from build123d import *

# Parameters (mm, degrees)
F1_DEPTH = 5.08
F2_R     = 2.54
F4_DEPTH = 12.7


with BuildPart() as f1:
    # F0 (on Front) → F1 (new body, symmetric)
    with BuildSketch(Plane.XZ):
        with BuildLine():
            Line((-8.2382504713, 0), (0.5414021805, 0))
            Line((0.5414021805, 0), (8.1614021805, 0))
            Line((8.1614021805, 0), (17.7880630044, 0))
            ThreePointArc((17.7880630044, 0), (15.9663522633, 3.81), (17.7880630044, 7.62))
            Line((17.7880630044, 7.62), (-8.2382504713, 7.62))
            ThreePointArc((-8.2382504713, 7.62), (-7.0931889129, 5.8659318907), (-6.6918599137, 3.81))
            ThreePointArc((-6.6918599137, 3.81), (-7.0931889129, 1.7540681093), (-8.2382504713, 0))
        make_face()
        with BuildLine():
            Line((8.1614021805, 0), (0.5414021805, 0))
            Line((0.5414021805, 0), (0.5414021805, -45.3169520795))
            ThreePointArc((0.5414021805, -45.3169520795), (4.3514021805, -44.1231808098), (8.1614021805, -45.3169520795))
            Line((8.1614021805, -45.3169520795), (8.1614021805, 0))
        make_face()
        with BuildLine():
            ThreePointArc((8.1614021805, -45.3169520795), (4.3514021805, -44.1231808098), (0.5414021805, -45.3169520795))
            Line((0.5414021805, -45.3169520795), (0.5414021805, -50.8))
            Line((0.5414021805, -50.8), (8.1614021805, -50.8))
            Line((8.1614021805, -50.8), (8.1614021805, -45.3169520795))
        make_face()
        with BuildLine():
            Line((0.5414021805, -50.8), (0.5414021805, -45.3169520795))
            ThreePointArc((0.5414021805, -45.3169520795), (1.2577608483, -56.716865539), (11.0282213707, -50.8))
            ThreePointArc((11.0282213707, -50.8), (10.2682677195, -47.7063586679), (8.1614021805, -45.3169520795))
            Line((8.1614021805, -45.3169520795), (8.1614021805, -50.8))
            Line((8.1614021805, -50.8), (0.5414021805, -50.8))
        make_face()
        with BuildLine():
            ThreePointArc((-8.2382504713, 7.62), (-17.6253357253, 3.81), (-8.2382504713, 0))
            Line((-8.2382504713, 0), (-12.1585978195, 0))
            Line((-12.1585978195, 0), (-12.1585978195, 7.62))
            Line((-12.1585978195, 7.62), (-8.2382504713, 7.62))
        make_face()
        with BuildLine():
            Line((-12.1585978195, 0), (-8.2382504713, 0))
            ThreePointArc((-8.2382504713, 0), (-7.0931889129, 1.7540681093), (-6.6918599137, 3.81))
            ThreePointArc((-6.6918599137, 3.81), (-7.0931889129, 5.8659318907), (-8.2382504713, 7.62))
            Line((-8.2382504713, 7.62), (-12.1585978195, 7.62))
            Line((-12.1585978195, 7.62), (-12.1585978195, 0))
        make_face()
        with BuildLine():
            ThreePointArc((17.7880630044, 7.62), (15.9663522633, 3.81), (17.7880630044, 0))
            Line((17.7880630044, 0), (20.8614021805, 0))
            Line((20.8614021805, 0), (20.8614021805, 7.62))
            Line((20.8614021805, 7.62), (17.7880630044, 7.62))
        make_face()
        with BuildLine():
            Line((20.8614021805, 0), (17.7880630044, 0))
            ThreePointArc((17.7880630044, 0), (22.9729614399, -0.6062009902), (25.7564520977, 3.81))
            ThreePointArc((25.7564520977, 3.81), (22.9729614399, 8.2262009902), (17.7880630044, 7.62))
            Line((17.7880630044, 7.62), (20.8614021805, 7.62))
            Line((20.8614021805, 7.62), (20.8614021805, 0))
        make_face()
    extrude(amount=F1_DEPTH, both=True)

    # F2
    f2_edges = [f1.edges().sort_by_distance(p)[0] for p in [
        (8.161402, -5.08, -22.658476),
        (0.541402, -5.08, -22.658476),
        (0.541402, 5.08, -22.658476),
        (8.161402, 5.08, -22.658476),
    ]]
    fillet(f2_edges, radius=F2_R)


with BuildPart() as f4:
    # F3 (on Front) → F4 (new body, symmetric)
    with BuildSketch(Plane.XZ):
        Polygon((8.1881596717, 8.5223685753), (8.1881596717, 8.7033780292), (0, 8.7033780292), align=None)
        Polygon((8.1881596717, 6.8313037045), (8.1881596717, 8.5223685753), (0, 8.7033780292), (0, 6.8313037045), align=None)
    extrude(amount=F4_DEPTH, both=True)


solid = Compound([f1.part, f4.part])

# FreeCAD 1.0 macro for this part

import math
import FreeCAD as App
import Part
import Sketcher
Q = App.Units.Quantity


def edges_at(feature, points):
    """Names of the edges that pass closest to the given points."""
    edges = feature.Shape.Edges
    near = lambda p: min(range(len(edges)), key=lambda i: edges[i].distToShape(Part.Vertex(*p))[0])
    return sorted({f"Edge{near(p) + 1}" for p in points})


def add_polygon(sketch, points):
    """Adds a closed chain of lines whose ends are joined by coincident constraints."""
    first, n = sketch.GeometryCount, len(points)
    for a, b in zip(points, points[1:] + points[:1]):
        sketch.addGeometry(Part.LineSegment(App.Vector(*a, 0), App.Vector(*b, 0)), False)
    for i in range(n):
        sketch.addConstraint(Sketcher.Constraint("Coincident", first + i, 2, first + (i + 1) % n, 1))

doc = App.newDocument("Part")
body = doc.addObject("PartDesign::Body", "Body")

# Sketch on XZ plane
sketch1 = doc.addObject("Sketcher::SketchObject", "Sketch")
body.addObject(sketch1)
sketch1.AttachmentSupport = (doc.XZ_Plane, [""])
sketch1.MapMode = "FlatFace"
sketch1.addGeometry(Part.LineSegment(App.Vector(-8.2, 0, 0), App.Vector(0.5, 0, 0)), False)
sketch1.addGeometry(Part.LineSegment(App.Vector(0.5, 0, 0), App.Vector(0.5, -45.3, 0)), False)
sketch1.addGeometry(Part.ArcOfCircle(Part.Circle(App.Vector(4.4, -50.8, 0), App.Vector(0, 0, 1), 6.7), math.radians(125), math.radians(360)), False)
sketch1.addGeometry(Part.ArcOfCircle(Part.Circle(App.Vector(4.4, -50.8, 0), App.Vector(0, 0, 1), 6.7), math.radians(0), math.radians(55)), False)
sketch1.addGeometry(Part.LineSegment(App.Vector(8.2, -45.3, 0), App.Vector(8.2, 0, 0)), False)
sketch1.addGeometry(Part.LineSegment(App.Vector(8.2, 0, 0), App.Vector(17.8, 0, 0)), False)
sketch1.addGeometry(Part.ArcOfCircle(Part.Circle(App.Vector(20.9, 3.8, 0), App.Vector(0, 0, 1), 4.9), math.radians(-129), math.radians(0)), False)
sketch1.addGeometry(Part.ArcOfCircle(Part.Circle(App.Vector(20.9, 3.8, 0), App.Vector(0, 0, 1), 4.9), math.radians(0), math.radians(129)), False)
sketch1.addGeometry(Part.LineSegment(App.Vector(17.8, 7.6, 0), App.Vector(-8.2, 7.6, 0)), False)
sketch1.addGeometry(Part.ArcOfCircle(Part.Circle(App.Vector(-12.2, 3.8, 0), App.Vector(0, 0, 1), 5.5), math.radians(44), math.radians(316)), False)
sketch1.addConstraint(Sketcher.Constraint("Coincident", 0, 2, 1, 1))
sketch1.addConstraint(Sketcher.Constraint("Coincident", 1, 2, 2, 1))
sketch1.addConstraint(Sketcher.Constraint("Tangent", 2, 2, 3, 1))
sketch1.addConstraint(Sketcher.Constraint("Coincident", 3, 2, 4, 1))
sketch1.addConstraint(Sketcher.Constraint("Coincident", 4, 2, 5, 1))
sketch1.addConstraint(Sketcher.Constraint("Coincident", 5, 2, 6, 1))
sketch1.addConstraint(Sketcher.Constraint("Tangent", 6, 2, 7, 1))
sketch1.addConstraint(Sketcher.Constraint("Coincident", 7, 2, 8, 1))
sketch1.addConstraint(Sketcher.Constraint("Coincident", 8, 2, 9, 1))
sketch1.addConstraint(Sketcher.Constraint("Coincident", 9, 2, 0, 1))
sketch1.addConstraint(Sketcher.Constraint("Horizontal", 0))
sketch1.addConstraint(Sketcher.Constraint("Vertical", 1))
sketch1.addConstraint(Sketcher.Constraint("Vertical", 4))
sketch1.addConstraint(Sketcher.Constraint("Horizontal", 5))
sketch1.addConstraint(Sketcher.Constraint("Horizontal", 8))
sketch1.addConstraint(Sketcher.Constraint("Equal", 2, 3))
sketch1.addConstraint(Sketcher.Constraint("Equal", 6, 7))
sketch1.addConstraint(Sketcher.Constraint("PointOnObject", 0, 2, -1))
sketch1.addConstraint(Sketcher.Constraint("PointOnObject", 4, 2, -1))
sketch1.addConstraint(Sketcher.Constraint("Horizontal", 7, 3, 9, 3))
sketch1.addConstraint(Sketcher.Constraint("Horizontal", 3, 3, 2, 2))
sketch1.addConstraint(Sketcher.Constraint("Horizontal", 1, 2, 3, 2))
sketch1.addConstraint(Sketcher.Constraint("Horizontal", 9, 3, 6, 2))
sketch1.addConstraint(Sketcher.Constraint("Vertical", 5, 2, 7, 2))
sketch1.addConstraint(Sketcher.Constraint("DistanceY", 2, 3, -1, 1, Q("2 in")))
sketch1.addConstraint(Sketcher.Constraint("DistanceY", -1, 1, 7, 2, Q("0.3 in")))
sketch1.addConstraint(Sketcher.Constraint("DistanceX", 9, 3, 6, 3, Q("1.3 in")))
sketch1.addConstraint(Sketcher.Constraint("DistanceX", 9, 3, 0, 2, Q("0.5 in")))
sketch1.addConstraint(Sketcher.Constraint("DistanceX", 1, 2, 3, 2, Q("0.3 in")))
sketch1.addConstraint(Sketcher.Constraint("Radius", 2, Q("6.676819 mm")))
sketch1.addConstraint(Sketcher.Constraint("Radius", 6, Q("4.89505 mm")))
sketch1.addConstraint(Sketcher.Constraint("Radius", 9, Q("5.466738 mm")))
sketch1.addConstraint(Sketcher.Constraint("DistanceX", -1, 1, 2, 2, Q("11.028221 mm")))
pad1 = doc.addObject("PartDesign::Pad", "Pad")
body.addObject(pad1)
pad1.Profile = sketch1
pad1.Length = Q("0.4 in")
pad1.Midplane = True
doc.recompute()

fillet = doc.addObject("PartDesign::Fillet", "Fillet")
body.addObject(fillet)
fillet.Base = (pad1, edges_at(pad1, [
    (8.161, -5.08, -22.658),
    (0.541, -5.08, -22.658),
    (0.541, 5.08, -22.658),
    (8.161, 5.08, -22.658),
]))
fillet.Radius = Q("0.1 in")
body2 = doc.addObject("PartDesign::Body", "Body001")

# Sketch on XZ plane
sketch2 = doc.addObject("Sketcher::SketchObject", "Sketch001")
body2.addObject(sketch2)
sketch2.AttachmentSupport = (doc.getObject("XZ_Plane001"), [""])
sketch2.MapMode = "FlatFace"
add_polygon(sketch2, [(8.2, 8.7), (0, 8.7), (0, 6.8), (8.2, 6.8)])  # lines 0-3
sketch2.addConstraint(Sketcher.Constraint("Horizontal", 0))
sketch2.addConstraint(Sketcher.Constraint("Vertical", 1))
sketch2.addConstraint(Sketcher.Constraint("Horizontal", 2))
sketch2.addConstraint(Sketcher.Constraint("Vertical", 3))
sketch2.addConstraint(Sketcher.Constraint("PointOnObject", 0, 2, -2))
sketch2.addConstraint(Sketcher.Constraint("DistanceX", 0, 2, 0, 1, Q("8.18816 mm")))
sketch2.addConstraint(Sketcher.Constraint("DistanceY", 1, 2, 1, 1, Q("1.872074 mm")))
sketch2.addConstraint(Sketcher.Constraint("DistanceY", -1, 1, 0, 2, Q("8.703378 mm")))
pad2 = doc.addObject("PartDesign::Pad", "Pad001")
body2.addObject(pad2)
pad2.Profile = sketch2
pad2.Length = Q("1 in")
pad2.Midplane = True

doc.recompute()
